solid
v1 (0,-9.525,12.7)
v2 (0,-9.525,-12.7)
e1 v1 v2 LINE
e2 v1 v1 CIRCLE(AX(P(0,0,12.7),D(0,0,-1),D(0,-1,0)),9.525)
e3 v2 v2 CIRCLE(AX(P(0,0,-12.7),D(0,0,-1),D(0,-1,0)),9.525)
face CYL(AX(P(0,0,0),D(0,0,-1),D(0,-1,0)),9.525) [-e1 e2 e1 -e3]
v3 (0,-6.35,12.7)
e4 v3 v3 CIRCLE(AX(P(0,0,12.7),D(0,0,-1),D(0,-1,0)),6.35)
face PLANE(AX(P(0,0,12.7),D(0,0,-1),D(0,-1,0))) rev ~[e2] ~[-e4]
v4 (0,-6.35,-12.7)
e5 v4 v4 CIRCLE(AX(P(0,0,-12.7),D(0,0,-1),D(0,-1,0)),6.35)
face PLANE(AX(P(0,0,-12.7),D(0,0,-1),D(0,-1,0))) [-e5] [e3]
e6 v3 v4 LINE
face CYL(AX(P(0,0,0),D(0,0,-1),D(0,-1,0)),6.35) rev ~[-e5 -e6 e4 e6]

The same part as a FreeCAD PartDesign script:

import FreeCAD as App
import Part
import Sketcher

V = App.Vector
Q = App.Units.Quantity

doc = App.newDocument("Part")
body = doc.addObject("PartDesign::Body", "Body")

# Sketch on YZ plane
sketch1 = doc.addObject("Sketcher::SketchObject", "Sketch")
body.addObject(sketch1)
sketch1.AttachmentSupport = (doc.YZ_Plane, [""])
sketch1.MapMode = "FlatFace"
sketch1.addGeometry(Part.LineSegment(V(-6.35, 12.7, 0), V(-9.525, 12.7, 0)), False)
sketch1.addGeometry(Part.LineSegment(V(-9.525, 12.7, 0), V(-9.525, -12.7, 0)), False)
sketch1.addGeometry(Part.LineSegment(V(-9.525, -12.7, 0), V(-6.35, -12.7, 0)), False)
sketch1.addGeometry(Part.LineSegment(V(-6.35, -12.7, 0), V(-6.35, 12.7, 0)), False)
sketch1.addConstraint(Sketcher.Constraint("Coincident", 0, 2, 1, 1))
sketch1.addConstraint(Sketcher.Constraint("Coincident", 1, 2, 2, 1))
sketch1.addConstraint(Sketcher.Constraint("Coincident", 2, 2, 3, 1))
sketch1.addConstraint(Sketcher.Constraint("Coincident", 3, 2, 0, 1))
sketch1.addConstraint(Sketcher.Constraint("Horizontal", 0))
sketch1.addConstraint(Sketcher.Constraint("Vertical", 1))
sketch1.addConstraint(Sketcher.Constraint("Horizontal", 2))
sketch1.addConstraint(Sketcher.Constraint("Vertical", 3))
sketch1.addConstraint(Sketcher.Constraint("DistanceY", 1, 2, 1, 1, Q("1 in")))
sketch1.addConstraint(Sketcher.Constraint("DistanceY", -1, 1, 0, 2, Q("0.5 in")))
sketch1.addConstraint(Sketcher.Constraint("DistanceX", 0, 2, 0, 1, Q("0.125 in")))
sketch1.addConstraint(Sketcher.Constraint("DistanceX", 2, 2, -1, 1, Q("0.25 in")))
revolution = doc.addObject("PartDesign::Revolution", "Revolution")
body.addObject(revolution)
revolution.Profile = sketch1
revolution.ReferenceAxis = (sketch1, ["V_Axis"])
revolution.Angle = 360

doc.recompute()
